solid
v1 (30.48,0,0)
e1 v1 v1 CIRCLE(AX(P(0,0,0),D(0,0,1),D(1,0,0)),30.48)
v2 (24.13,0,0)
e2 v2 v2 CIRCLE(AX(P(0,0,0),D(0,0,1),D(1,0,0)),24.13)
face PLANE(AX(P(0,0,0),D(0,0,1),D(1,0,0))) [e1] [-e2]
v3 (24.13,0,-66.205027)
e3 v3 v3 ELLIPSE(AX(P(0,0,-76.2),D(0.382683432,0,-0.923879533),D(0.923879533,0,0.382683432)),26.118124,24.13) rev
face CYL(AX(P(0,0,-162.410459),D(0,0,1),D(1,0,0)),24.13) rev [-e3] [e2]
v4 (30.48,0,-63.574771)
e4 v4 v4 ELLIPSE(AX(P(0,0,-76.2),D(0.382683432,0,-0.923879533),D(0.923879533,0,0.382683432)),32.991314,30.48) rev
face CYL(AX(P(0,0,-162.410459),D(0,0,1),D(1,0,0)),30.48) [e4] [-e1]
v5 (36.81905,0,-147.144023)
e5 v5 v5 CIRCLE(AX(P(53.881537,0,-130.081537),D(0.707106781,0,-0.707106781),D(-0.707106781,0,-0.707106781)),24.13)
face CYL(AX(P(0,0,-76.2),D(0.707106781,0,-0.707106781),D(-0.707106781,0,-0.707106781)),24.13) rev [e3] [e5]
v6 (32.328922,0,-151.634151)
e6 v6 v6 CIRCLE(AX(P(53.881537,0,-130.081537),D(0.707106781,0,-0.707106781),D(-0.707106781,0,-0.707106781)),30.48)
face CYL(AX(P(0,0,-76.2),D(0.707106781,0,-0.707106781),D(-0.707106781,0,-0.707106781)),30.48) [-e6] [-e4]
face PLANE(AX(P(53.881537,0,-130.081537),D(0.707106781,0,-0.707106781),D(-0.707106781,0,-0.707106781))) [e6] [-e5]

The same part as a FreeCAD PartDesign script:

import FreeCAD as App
import Part
import Sketcher
from FreeCAD import Vector
Q = App.Units.Quantity

doc = App.newDocument("Part")
params = doc.addObject("Spreadsheet::Sheet", "Params")
for row, (alias, value) in enumerate([
    ("sketch1_diameter", "2.4 in"),
    ("sketch1_diameter2", "1.9 in"),
    ("sketch2_height", "3 in"),
    ("sketch2_length", "3 in"),
], start=1):
    params.set(f"A{row}", alias)
    params.set(f"B{row}", "=" + value)
    params.setAlias(f"B{row}", alias)

body = doc.addObject("PartDesign::Body", "Body")

sketch1 = body.newObject("Sketcher::SketchObject", "Sketch")
sketch1.AttachmentSupport = (doc.getObject("XY_Plane"), [""])
sketch1.MapMode = "FlatFace"
sketch1.addGeometry([
    Part.Circle(Vector(0, 0, 0), Vector(0, 0, 1), 30),
    Part.Circle(Vector(0, 0, 0), Vector(0, 0, 1), 24),
], False)
sketch1.addConstraint([
    Sketcher.Constraint("Coincident", 0, 3, -1, 1),
    Sketcher.Constraint("Coincident", 1, 3, -1, 1),
    Sketcher.Constraint("Diameter", 0, Q("2.4 in")),
    Sketcher.Constraint("Diameter", 1, Q("1.9 in")),
])
sketch1.setExpression("Constraints[2]", "Params.sketch1_diameter")
sketch1.setExpression("Constraints[3]", "Params.sketch1_diameter2")

sketch2 = body.newObject("Sketcher::SketchObject", "Sketch001")
sketch2.AttachmentSupport = (doc.getObject("XZ_Plane"), [""])
sketch2.MapMode = "FlatFace"
sketch2.addGeometry([
    Part.LineSegment(Vector(0, 0, 0), Vector(0, -76, 0)),
    Part.LineSegment(Vector(0, -76, 0), Vector(54, -130, 0)),
], False)
sketch2.addConstraint([
    Sketcher.Constraint("Coincident", 0, 2, 1, 1),
    Sketcher.Constraint("Vertical", 0),
    Sketcher.Constraint("Coincident", 0, 1, -1, 1),
    Sketcher.Constraint("DistanceY", 0, 2, 0, 1, Q("3 in")),
    Sketcher.Constraint("Distance", 1, Q("3 in")),
    Sketcher.Constraint("Angle", 1, Q("-45 deg")),
])
sketch2.setExpression("Constraints[3]", "Params.sketch2_height")
sketch2.setExpression("Constraints[4]", "Params.sketch2_length")
doc.recompute()

additivepipe = body.newObject("PartDesign::AdditivePipe", "AdditivePipe")
additivepipe.Profile = sketch1
additivepipe.Spine = (sketch2, ["Edge1", "Edge2"])
additivepipe.Transition = "Right corner"

doc.recompute()
